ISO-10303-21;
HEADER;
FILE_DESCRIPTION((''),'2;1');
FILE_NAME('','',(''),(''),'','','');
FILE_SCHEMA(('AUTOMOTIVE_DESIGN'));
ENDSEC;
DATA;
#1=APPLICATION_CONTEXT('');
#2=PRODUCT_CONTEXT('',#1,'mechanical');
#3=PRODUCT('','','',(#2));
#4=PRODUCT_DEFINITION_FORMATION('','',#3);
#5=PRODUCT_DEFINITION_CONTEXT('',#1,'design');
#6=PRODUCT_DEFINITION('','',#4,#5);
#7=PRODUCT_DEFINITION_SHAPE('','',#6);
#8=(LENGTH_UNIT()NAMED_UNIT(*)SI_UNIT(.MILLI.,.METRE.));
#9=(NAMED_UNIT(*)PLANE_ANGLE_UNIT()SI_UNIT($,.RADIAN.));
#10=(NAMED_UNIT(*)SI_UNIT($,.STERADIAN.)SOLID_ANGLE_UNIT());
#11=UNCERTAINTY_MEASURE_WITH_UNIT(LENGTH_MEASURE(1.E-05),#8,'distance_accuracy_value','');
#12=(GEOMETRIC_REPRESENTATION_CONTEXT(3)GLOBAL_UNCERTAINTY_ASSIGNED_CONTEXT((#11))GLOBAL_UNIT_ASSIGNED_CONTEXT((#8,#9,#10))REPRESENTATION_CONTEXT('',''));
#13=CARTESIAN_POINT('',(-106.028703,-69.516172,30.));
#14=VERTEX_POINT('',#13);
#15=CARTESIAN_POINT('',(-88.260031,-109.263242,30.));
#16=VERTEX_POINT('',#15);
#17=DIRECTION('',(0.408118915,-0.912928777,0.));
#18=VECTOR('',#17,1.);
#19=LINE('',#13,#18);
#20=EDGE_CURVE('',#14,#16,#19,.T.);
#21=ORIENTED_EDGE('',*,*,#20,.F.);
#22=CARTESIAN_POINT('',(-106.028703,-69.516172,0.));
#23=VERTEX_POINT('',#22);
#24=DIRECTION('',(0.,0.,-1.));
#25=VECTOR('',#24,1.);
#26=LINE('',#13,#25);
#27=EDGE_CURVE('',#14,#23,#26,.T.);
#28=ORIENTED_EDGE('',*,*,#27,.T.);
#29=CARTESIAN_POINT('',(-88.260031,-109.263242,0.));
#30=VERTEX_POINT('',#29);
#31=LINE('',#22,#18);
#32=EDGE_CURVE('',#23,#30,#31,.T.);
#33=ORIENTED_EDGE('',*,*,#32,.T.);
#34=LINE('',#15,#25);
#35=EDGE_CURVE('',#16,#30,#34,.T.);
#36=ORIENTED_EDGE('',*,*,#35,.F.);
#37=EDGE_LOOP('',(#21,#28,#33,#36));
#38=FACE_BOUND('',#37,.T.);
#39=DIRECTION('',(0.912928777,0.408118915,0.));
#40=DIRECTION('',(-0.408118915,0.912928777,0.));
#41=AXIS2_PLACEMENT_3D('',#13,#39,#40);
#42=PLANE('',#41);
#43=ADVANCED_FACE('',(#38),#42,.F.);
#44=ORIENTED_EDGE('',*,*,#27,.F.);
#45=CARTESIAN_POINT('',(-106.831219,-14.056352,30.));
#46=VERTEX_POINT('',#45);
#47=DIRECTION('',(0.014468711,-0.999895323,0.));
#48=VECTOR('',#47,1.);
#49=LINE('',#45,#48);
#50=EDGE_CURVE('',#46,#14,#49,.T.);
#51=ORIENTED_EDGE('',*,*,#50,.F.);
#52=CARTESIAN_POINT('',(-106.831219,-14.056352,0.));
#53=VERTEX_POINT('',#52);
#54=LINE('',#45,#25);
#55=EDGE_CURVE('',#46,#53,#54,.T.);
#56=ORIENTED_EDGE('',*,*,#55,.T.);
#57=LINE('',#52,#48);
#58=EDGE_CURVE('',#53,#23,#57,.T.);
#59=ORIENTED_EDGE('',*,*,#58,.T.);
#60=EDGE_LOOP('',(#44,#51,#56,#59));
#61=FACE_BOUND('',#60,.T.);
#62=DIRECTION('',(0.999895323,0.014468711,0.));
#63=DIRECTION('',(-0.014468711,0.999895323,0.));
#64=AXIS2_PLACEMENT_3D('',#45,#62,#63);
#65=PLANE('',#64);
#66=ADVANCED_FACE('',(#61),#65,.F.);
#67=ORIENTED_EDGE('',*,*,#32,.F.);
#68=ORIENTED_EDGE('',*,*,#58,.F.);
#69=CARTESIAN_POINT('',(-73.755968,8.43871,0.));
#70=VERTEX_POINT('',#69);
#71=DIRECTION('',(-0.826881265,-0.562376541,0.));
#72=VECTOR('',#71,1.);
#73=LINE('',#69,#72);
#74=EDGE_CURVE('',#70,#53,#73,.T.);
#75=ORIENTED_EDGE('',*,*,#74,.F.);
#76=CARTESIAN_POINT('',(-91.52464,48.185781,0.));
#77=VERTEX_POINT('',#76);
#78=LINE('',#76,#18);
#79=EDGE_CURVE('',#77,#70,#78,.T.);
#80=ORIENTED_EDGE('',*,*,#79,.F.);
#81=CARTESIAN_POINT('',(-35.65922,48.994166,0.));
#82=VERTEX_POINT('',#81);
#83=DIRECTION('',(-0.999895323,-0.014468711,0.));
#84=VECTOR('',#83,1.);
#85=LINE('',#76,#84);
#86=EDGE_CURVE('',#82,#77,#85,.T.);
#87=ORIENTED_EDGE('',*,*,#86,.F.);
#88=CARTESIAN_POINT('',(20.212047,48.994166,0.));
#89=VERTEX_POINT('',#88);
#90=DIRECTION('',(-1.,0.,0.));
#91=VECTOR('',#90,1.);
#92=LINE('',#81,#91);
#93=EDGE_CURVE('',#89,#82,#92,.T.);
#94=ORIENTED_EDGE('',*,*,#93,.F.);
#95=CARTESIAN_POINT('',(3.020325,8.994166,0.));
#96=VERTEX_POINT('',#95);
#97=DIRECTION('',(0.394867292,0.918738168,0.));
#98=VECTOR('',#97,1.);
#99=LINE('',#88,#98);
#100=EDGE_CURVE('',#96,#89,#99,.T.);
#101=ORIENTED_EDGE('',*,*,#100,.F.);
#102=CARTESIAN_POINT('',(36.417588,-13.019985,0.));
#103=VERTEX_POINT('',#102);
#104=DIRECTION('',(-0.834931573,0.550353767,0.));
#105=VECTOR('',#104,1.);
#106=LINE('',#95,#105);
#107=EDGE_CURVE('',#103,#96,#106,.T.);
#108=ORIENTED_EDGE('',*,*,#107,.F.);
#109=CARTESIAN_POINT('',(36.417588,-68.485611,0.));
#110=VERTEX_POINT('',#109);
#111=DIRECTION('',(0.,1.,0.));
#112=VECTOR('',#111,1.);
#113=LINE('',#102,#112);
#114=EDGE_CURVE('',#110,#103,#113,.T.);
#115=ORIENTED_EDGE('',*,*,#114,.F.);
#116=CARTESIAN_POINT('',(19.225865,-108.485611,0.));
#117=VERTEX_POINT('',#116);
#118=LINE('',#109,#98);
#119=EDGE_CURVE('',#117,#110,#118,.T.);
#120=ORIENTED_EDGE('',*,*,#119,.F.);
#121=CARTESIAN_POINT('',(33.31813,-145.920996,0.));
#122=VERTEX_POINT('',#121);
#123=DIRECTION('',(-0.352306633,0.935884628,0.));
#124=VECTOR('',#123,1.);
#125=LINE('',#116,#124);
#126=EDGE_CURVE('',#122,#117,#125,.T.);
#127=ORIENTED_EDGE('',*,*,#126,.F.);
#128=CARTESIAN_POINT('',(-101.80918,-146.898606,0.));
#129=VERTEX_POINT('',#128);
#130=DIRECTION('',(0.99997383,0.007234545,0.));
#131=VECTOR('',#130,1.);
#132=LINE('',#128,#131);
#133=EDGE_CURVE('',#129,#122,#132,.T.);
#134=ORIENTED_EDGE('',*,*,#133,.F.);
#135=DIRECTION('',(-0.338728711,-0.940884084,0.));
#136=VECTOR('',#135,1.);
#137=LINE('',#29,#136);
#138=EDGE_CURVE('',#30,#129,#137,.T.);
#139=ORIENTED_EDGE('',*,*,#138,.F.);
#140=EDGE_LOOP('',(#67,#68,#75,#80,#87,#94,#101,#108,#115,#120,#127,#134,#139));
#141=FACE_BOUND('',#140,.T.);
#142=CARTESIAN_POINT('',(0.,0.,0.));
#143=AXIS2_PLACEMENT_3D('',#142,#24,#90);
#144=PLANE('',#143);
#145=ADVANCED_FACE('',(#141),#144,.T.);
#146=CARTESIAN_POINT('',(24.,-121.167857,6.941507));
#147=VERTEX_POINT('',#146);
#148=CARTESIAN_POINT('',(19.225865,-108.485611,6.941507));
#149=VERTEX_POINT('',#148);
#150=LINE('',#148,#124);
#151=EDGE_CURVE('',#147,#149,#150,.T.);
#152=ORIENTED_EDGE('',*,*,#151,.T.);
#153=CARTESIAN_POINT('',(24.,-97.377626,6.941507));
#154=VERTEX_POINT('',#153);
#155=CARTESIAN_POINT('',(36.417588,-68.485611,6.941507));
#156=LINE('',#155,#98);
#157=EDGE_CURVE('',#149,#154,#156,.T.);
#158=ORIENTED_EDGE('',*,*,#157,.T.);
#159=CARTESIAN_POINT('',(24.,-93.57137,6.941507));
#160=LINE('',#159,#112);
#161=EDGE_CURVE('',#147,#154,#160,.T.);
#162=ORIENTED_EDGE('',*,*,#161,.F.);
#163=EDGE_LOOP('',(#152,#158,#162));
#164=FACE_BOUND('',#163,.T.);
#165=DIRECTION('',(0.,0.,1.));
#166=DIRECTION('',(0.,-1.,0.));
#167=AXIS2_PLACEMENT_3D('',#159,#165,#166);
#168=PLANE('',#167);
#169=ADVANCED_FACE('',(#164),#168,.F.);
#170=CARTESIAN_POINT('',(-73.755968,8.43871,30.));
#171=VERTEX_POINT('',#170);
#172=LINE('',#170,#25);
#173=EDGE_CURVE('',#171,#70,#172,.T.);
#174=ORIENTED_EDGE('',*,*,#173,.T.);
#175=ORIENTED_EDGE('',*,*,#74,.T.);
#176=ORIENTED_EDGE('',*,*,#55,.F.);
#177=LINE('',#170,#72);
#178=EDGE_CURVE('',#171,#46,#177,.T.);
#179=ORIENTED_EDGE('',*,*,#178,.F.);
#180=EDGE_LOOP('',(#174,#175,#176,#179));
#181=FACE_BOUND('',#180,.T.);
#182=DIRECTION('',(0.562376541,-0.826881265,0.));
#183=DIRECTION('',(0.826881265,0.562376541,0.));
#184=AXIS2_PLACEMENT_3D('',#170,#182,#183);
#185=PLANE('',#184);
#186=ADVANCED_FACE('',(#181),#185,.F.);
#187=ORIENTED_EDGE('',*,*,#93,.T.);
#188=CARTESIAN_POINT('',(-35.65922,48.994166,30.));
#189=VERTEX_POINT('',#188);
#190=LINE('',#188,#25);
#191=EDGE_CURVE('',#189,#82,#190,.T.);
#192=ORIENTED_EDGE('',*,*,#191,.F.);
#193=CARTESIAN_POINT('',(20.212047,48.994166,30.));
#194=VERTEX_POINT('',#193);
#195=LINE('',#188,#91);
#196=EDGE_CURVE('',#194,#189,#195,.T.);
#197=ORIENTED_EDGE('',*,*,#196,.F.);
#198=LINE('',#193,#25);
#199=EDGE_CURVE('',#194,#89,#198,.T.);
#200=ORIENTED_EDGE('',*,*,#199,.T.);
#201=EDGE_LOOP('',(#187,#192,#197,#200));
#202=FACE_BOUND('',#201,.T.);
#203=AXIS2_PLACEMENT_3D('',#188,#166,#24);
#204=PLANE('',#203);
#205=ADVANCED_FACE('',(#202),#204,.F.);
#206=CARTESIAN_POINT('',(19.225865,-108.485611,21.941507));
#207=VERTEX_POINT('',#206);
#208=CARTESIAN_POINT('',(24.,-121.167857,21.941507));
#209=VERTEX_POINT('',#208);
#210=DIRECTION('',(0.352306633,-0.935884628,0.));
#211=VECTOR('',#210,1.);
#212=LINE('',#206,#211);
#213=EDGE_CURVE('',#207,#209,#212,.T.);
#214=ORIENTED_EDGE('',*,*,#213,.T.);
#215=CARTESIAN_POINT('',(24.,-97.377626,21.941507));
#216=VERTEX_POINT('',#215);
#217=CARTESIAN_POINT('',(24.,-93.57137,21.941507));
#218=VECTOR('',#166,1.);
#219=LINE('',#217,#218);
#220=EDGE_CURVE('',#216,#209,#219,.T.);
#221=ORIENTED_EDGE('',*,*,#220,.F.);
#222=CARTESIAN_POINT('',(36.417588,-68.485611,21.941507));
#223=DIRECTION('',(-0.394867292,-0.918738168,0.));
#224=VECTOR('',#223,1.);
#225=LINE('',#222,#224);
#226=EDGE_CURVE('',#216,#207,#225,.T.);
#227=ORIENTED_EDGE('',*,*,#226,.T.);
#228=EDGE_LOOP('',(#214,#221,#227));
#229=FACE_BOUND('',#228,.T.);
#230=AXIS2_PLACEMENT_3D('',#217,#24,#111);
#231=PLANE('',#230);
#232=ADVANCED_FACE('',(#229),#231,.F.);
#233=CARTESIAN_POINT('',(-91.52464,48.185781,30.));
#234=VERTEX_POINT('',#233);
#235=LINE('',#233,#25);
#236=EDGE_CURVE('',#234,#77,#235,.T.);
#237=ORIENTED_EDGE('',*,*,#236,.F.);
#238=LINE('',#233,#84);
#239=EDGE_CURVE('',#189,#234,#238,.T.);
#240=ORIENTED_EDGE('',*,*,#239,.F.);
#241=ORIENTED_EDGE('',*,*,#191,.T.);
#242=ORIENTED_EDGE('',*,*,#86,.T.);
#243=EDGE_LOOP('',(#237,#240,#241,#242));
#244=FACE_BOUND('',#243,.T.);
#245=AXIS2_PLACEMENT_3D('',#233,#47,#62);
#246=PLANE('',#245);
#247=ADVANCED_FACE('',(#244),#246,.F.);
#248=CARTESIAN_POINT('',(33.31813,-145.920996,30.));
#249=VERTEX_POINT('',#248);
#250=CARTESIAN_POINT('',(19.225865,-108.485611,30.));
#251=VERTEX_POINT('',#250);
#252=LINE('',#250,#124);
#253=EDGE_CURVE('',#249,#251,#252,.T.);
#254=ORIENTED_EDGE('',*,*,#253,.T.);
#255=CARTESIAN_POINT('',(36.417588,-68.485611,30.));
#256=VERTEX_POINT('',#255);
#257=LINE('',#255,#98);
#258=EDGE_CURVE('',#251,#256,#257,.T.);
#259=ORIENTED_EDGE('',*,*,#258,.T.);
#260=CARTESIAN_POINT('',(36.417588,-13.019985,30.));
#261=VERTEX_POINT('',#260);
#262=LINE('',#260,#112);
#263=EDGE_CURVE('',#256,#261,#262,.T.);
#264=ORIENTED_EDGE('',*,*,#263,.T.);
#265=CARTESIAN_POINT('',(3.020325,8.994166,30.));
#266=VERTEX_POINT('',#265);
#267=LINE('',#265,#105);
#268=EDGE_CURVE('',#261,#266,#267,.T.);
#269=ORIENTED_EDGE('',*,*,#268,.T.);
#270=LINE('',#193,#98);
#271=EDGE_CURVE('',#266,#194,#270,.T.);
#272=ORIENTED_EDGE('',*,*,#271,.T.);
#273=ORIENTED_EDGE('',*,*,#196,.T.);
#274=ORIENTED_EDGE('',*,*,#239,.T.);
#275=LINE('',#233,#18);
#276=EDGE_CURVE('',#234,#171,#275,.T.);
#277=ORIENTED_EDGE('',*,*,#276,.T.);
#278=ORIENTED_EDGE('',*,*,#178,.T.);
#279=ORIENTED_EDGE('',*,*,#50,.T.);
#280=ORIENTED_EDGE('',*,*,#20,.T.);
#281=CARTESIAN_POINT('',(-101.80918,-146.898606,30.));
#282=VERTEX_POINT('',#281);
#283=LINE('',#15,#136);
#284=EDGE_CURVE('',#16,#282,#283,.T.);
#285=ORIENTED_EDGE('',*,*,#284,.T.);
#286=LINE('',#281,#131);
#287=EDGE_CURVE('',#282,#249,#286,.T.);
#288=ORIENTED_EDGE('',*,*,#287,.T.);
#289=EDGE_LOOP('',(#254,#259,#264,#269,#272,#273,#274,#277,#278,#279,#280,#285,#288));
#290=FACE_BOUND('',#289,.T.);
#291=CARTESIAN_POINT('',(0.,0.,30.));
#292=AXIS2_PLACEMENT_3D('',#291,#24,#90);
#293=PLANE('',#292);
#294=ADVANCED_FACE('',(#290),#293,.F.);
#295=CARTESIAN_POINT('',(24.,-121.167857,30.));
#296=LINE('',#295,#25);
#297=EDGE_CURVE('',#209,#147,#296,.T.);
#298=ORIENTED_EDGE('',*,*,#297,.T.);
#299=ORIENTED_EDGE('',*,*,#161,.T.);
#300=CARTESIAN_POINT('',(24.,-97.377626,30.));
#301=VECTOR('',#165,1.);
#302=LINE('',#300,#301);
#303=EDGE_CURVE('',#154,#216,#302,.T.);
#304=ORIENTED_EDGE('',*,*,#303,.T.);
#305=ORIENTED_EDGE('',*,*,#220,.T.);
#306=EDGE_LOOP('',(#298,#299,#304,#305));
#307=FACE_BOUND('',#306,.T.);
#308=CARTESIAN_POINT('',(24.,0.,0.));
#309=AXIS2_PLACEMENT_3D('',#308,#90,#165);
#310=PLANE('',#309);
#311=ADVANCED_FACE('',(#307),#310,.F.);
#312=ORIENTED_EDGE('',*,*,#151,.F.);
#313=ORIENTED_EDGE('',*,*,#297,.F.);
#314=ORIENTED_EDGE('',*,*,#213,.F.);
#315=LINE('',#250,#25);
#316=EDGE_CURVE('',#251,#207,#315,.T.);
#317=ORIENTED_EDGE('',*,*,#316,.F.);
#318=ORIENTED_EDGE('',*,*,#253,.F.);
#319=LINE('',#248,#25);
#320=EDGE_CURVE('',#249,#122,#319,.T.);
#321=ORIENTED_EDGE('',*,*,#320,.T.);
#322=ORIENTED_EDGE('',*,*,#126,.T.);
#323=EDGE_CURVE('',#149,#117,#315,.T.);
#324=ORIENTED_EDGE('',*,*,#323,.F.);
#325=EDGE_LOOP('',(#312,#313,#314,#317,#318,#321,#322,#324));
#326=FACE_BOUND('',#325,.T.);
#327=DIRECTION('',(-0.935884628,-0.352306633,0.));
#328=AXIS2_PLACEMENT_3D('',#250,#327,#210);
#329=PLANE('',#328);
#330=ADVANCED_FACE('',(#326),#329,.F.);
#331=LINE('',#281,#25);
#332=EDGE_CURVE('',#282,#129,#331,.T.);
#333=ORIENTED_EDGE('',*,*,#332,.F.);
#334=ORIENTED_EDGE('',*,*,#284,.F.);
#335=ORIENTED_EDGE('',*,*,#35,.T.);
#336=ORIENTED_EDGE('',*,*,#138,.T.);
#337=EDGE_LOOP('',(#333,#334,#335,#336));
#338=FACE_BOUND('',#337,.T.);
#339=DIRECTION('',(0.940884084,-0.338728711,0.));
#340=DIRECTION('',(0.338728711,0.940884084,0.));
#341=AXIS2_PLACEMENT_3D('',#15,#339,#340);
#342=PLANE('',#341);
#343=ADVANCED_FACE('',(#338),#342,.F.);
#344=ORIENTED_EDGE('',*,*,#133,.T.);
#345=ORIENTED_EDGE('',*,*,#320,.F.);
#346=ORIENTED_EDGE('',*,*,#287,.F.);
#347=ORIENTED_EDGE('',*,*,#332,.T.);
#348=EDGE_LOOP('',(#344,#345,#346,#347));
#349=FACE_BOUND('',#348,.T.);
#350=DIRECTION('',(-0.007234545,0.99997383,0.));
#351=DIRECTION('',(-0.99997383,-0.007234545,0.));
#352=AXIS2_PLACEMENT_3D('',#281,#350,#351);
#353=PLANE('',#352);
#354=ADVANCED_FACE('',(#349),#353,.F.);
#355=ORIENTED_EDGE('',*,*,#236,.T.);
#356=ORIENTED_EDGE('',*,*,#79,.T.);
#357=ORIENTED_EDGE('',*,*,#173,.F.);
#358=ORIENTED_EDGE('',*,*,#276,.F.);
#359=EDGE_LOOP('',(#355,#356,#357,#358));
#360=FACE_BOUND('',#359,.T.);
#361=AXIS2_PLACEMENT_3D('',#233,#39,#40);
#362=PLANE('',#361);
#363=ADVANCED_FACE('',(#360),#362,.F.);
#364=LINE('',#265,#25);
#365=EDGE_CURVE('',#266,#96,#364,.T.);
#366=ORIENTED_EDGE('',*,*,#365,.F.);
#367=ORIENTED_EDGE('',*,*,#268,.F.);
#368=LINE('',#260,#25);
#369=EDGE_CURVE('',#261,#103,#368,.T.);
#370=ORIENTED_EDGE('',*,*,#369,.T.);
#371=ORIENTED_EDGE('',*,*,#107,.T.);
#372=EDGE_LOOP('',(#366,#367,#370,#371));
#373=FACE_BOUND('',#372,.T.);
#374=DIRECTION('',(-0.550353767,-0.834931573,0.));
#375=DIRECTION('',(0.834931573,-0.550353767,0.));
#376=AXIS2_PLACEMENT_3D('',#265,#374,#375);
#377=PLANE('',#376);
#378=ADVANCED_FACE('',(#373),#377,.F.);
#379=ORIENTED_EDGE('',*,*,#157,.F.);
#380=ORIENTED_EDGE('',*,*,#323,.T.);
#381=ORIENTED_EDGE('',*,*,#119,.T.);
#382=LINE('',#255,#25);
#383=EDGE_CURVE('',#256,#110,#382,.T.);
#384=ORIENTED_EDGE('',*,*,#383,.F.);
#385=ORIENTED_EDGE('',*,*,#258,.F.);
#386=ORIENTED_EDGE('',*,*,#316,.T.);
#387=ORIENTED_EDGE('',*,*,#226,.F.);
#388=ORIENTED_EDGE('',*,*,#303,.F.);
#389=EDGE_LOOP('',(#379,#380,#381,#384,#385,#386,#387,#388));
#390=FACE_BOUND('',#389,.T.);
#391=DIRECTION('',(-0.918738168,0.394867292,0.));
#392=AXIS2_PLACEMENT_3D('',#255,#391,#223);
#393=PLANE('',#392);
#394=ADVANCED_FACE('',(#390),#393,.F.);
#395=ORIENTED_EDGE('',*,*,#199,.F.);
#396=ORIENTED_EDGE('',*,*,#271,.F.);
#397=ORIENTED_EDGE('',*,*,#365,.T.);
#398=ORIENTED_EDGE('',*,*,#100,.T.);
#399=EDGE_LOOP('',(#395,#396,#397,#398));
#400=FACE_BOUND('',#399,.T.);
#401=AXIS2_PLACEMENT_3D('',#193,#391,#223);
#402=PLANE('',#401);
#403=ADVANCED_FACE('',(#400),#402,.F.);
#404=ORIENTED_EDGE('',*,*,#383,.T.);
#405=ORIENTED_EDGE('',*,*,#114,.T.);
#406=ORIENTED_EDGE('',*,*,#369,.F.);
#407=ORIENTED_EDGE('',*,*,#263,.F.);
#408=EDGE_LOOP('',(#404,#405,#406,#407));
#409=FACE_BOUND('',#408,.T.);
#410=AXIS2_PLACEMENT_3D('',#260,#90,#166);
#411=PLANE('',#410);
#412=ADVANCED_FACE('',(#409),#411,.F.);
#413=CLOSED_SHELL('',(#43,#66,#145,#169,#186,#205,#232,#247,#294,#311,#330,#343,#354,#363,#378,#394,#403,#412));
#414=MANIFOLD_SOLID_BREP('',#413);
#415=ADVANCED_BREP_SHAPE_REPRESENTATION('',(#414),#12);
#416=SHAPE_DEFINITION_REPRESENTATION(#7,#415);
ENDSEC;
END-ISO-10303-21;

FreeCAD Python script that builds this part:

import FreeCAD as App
import Part
import Sketcher

V = App.Vector
Q = App.Units.Quantity


def add_polygon(sketch, points):
    """Adds a closed chain of lines whose ends are joined by coincident constraints."""
    first, n = sketch.GeometryCount, len(points)
    for a, b in zip(points, points[1:] + points[:1]):
        sketch.addGeometry(Part.LineSegment(App.Vector(*a, 0), App.Vector(*b, 0)), False)
    for i in range(n):
        sketch.addConstraint(Sketcher.Constraint("Coincident", first + i, 2, first + (i + 1) % n, 1))

doc = App.newDocument("Part")
params = doc.addObject("Spreadsheet::Sheet", "Params")
for row, (alias, value) in enumerate([
    ("sketch1_length", "40 mm"),
    ("pad1_length", "30 mm"),
    ("sketch2_width", "30 mm"),
    ("sketch2_height", "15 mm"),
    ("pad2_length", "24 mm"),
], start=1):
    params.set(f"A{row}", alias)
    params.set(f"B{row}", "=" + value)
    params.setAlias(f"B{row}", alias)

body = doc.addObject("PartDesign::Body", "Body")

# Sketch on XY plane
sketch1 = body.newObject("Sketcher::SketchObject", "Sketch")
sketch1.AttachmentSupport = (doc.getObject("XY_Plane"), [""])
sketch1.MapMode = "FlatFace"
add_polygon(sketch1, [(20.212047, 48.994166), (-35.65922, 48.994166), (-91.52464, 48.185781), (-73.755968, 8.43871), (-106.831219, -14.056352), (-106.028703, -69.516172), (-88.260031, -109.263242), (-101.80918, -146.898606), (33.31813, -145.920996), (19.225865, -108.485611), (36.417588, -68.485611), (36.417588, -13.019985), (3.020325, 8.994166)])  # lines 0-12
sketch1.addConstraint([
    Sketcher.Constraint("Horizontal", 0),
    Sketcher.Constraint("Vertical", 10),
    Sketcher.Constraint("Perpendicular", 1, 4),
    Sketcher.Constraint("Parallel", 2, 5),
    Sketcher.Constraint("Parallel", 9, 12),
    Sketcher.Constraint("Equal", 2, 5),
    Sketcher.Constraint("Equal", 3, 6),
    Sketcher.Constraint("Equal", 6, 8),
    Sketcher.Constraint("Equal", 5, 9),
    Sketcher.Constraint("Equal", 8, 11),
    Sketcher.Constraint("Equal", 9, 12),
    Sketcher.Constraint("Distance", 3, Q("40 mm")),
    Sketcher.Constraint("DistanceY", 8, 2, 9, 2, Q("40 mm")),
    Sketcher.Constraint("DistanceX", 3, 2, 0, 2, Q("71.171998 mm")),
    Sketcher.Constraint("DistanceX", 2, 2, 7, 2, Q("107.074099 mm")),
    Sketcher.Constraint("DistanceX", 0, 2, 0, 1, Q("55.871268 mm")),
    Sketcher.Constraint("DistanceY", 10, 1, 10, 2, Q("55.465626 mm")),
    Sketcher.Constraint("DistanceX", 0, 2, -1, 1, Q("35.65922 mm")),
    Sketcher.Constraint("DistanceX", 1, 2, -1, 1, Q("91.52464 mm")),
    Sketcher.Constraint("DistanceY", -1, 1, 1, 2, Q("48.185781 mm")),
    Sketcher.Constraint("DistanceX", 2, 2, -1, 1, Q("73.755968 mm")),
    Sketcher.Constraint("DistanceY", -1, 1, 2, 2, Q("8.43871 mm")),
    Sketcher.Constraint("DistanceY", 4, 2, -1, 1, Q("69.516172 mm")),
    Sketcher.Constraint("DistanceX", 5, 2, -1, 1, Q("88.260031 mm")),
    Sketcher.Constraint("DistanceX", 6, 2, -1, 1, Q("101.80918 mm")),
    Sketcher.Constraint("DistanceY", 8, 2, -1, 1, Q("108.485611 mm")),
])
sketch1.setExpression("Constraints[24]", "Params.sketch1_length")
pad1 = body.newObject("PartDesign::Pad", "Pad")
pad1.Profile = sketch1
pad1.setExpression("Length", "Params.pad1_length")

# Sketch on YZ plane
sketch2 = body.newObject("Sketcher::SketchObject", "Sketch001")
sketch2.AttachmentSupport = (doc.getObject("YZ_Plane"), [""])
sketch2.MapMode = "FlatFace"
add_polygon(sketch2, [(-93.57137, 21.941507), (-123.57137, 21.941507), (-123.57137, 6.941507), (-93.57137, 6.941507)])  # lines 0-3
sketch2.addConstraint([
    Sketcher.Constraint("Horizontal", 0),
    Sketcher.Constraint("Vertical", 1),
    Sketcher.Constraint("Horizontal", 2),
    Sketcher.Constraint("Vertical", 3),
    Sketcher.Constraint("DistanceX", 0, 2, 0, 1, Q("30 mm")),
    Sketcher.Constraint("DistanceY", 1, 2, 1, 1, Q("15 mm")),
    Sketcher.Constraint("DistanceX", 0, 2, -1, 1, Q("123.57137 mm")),
    Sketcher.Constraint("DistanceY", -1, 1, 0, 2, Q("21.941507 mm")),
])
sketch2.setExpression("Constraints[8]", "Params.sketch2_width")
sketch2.setExpression("Constraints[9]", "Params.sketch2_height")
pad2 = body.newObject("PartDesign::Pad", "Pad001")
pad2.Profile = sketch2
pad2.setExpression("Length", "Params.pad2_length")

doc.recompute()
